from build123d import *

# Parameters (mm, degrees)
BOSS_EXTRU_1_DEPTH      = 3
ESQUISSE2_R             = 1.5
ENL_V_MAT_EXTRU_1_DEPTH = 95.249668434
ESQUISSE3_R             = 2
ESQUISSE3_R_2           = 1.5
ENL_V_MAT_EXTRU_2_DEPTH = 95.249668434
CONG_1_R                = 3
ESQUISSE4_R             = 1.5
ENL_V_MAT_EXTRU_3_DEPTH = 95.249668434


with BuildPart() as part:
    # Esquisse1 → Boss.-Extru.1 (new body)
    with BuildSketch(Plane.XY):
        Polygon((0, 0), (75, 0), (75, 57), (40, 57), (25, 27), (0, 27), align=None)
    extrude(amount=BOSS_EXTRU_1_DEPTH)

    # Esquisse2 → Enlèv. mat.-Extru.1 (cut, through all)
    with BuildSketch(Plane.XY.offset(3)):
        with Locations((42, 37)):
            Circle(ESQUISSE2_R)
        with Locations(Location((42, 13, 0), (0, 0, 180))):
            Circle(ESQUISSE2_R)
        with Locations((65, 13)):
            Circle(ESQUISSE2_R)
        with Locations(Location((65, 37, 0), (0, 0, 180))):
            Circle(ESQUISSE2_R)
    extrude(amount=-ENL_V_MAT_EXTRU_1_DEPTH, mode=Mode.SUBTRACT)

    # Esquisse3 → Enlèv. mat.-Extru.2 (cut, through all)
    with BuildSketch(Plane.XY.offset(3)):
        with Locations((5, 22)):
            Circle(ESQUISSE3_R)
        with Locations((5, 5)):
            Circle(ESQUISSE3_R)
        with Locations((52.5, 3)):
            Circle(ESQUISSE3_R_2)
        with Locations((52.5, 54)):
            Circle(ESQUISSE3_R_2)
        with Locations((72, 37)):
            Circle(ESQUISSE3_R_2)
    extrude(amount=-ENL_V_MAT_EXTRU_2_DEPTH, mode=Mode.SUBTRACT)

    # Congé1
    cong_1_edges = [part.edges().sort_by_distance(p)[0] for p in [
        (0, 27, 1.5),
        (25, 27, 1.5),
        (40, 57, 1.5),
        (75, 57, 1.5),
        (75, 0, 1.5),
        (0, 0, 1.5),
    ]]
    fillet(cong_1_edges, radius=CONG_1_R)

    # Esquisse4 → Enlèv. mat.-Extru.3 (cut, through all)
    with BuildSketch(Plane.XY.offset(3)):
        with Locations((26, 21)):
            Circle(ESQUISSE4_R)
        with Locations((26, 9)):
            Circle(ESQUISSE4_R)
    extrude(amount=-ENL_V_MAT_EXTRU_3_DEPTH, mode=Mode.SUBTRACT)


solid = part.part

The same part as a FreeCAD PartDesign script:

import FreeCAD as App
import Part
import Sketcher

V = App.Vector
Q = App.Units.Quantity


def edges_at(feature, points):
    """Names of the edges that pass closest to the given points."""
    edges = feature.Shape.Edges
    near = lambda p: min(range(len(edges)), key=lambda i: edges[i].distToShape(Part.Vertex(*p))[0])
    return sorted({f"Edge{near(p) + 1}" for p in points})

doc = App.newDocument("Part")
body = doc.addObject("PartDesign::Body", "Body")

# Sketch on XY plane
sketch1 = body.newObject("Sketcher::SketchObject", "Sketch")
sketch1.AttachmentSupport = (doc.getObject("XY_Plane"), [""])
sketch1.MapMode = "FlatFace"
sketch1.addGeometry([
    Part.LineSegment(V(0, 0, 0), V(75, 0, 0)),  # 0
    Part.LineSegment(V(75, 0, 0), V(75, 57, 0)),  # 1
    Part.LineSegment(V(75, 57, 0), V(40, 57, 0)),  # 2
    Part.LineSegment(V(40, 57, 0), V(25, 27, 0)),  # 3
    Part.LineSegment(V(25, 27, 0), V(0, 27, 0)),  # 4
    Part.LineSegment(V(0, 27, 0), V(0, 0, 0)),  # 5
], False)
sketch1.addConstraint([
    Sketcher.Constraint("Coincident", 0, 2, 1, 1),
    Sketcher.Constraint("Coincident", 1, 2, 2, 1),
    Sketcher.Constraint("Coincident", 2, 2, 3, 1),
    Sketcher.Constraint("Coincident", 3, 2, 4, 1),
    Sketcher.Constraint("Coincident", 4, 2, 5, 1),
    Sketcher.Constraint("Coincident", 5, 2, 0, 1),
    Sketcher.Constraint("Horizontal", 0),
    Sketcher.Constraint("Vertical", 1),
    Sketcher.Constraint("Horizontal", 2),
    Sketcher.Constraint("Horizontal", 4),
    Sketcher.Constraint("Vertical", 5),
    Sketcher.Constraint("Coincident", 5, 2, -1, 1),
    Sketcher.Constraint("DistanceX", 0, 1, 0, 2, Q("75 mm")),
    Sketcher.Constraint("DistanceX", 2, 2, 2, 1, Q("35 mm")),
    Sketcher.Constraint("DistanceX", 4, 2, 4, 1, Q("25 mm")),
    Sketcher.Constraint("DistanceY", 1, 1, 1, 2, Q("57 mm")),
    Sketcher.Constraint("DistanceY", 5, 2, 5, 1, Q("27 mm")),
])
pad1 = body.newObject("PartDesign::Pad", "Pad")
pad1.Profile = sketch1
pad1.Length = 3

# Sketch on XY plane
sketch2 = body.newObject("Sketcher::SketchObject", "Sketch001")
sketch2.AttachmentSupport = (doc.getObject("XY_Plane"), [""])
sketch2.MapMode = "FlatFace"
sketch2.AttachmentOffset = App.Placement(V(0, 0, 3), App.Rotation())
sketch2.addGeometry([
    Part.Circle(V(42, 37, 0), V(0, 0, 1), 1.5),
    Part.Circle(V(42, 13, 0), V(0, 0, 1), 1.5),
    Part.Circle(V(65, 13, 0), V(0, 0, 1), 1.5),
    Part.Circle(V(65, 37, 0), V(0, 0, 1), 1.5),
], False)
sketch2.addConstraint([
    Sketcher.Constraint("Equal", 0, 1),
    Sketcher.Constraint("Equal", 1, 2),
    Sketcher.Constraint("Equal", 2, 3),
    Sketcher.Constraint("Horizontal", 1, 3, 2, 3),
    Sketcher.Constraint("Horizontal", 0, 3, 3, 3),
    Sketcher.Constraint("Vertical", 0, 3, 1, 3),
    Sketcher.Constraint("Vertical", 2, 3, 3, 3),
    Sketcher.Constraint("Diameter", 0, Q("3 mm")),
    Sketcher.Constraint("DistanceX", -1, 1, 0, 3, Q("42 mm")),
    Sketcher.Constraint("DistanceY", -1, 1, 0, 3, Q("37 mm")),
    Sketcher.Constraint("DistanceY", -1, 1, 1, 3, Q("13 mm")),
    Sketcher.Constraint("DistanceX", -1, 1, 2, 3, Q("65 mm")),
])
pocket1 = body.newObject("PartDesign::Pocket", "Pocket")
pocket1.Profile = sketch2
pocket1.Type = "ThroughAll"

# Sketch on XY plane
sketch3 = body.newObject("Sketcher::SketchObject", "Sketch002")
sketch3.AttachmentSupport = (doc.getObject("XY_Plane"), [""])
sketch3.MapMode = "FlatFace"
sketch3.AttachmentOffset = App.Placement(V(0, 0, 3), App.Rotation())
sketch3.addGeometry([
    Part.Circle(V(5, 22, 0), V(0, 0, 1), 2),  # 0
    Part.Circle(V(5, 5, 0), V(0, 0, 1), 2),  # 1
    Part.Circle(V(52.5, 3, 0), V(0, 0, 1), 1.5),  # 2
    Part.Circle(V(52.5, 54, 0), V(0, 0, 1), 1.5),  # 3
    Part.Circle(V(72, 37, 0), V(0, 0, 1), 1.5),  # 4
], False)
sketch3.addConstraint([
    Sketcher.Constraint("Equal", 0, 1),
    Sketcher.Constraint("Equal", 2, 3),
    Sketcher.Constraint("Equal", 3, 4),
    Sketcher.Constraint("Vertical", 0, 3, 1, 3),
    Sketcher.Constraint("Vertical", 2, 3, 3, 3),
    Sketcher.Constraint("Diameter", 0, Q("4 mm")),
    Sketcher.Constraint("Diameter", 2, Q("3 mm")),
    Sketcher.Constraint("DistanceX", -1, 1, 0, 3, Q("5 mm")),
    Sketcher.Constraint("DistanceY", -1, 1, 0, 3, Q("22 mm")),
    Sketcher.Constraint("DistanceY", -1, 1, 1, 3, Q("5 mm")),
    Sketcher.Constraint("DistanceY", -1, 1, 2, 3, Q("3 mm")),
    Sketcher.Constraint("DistanceY", -1, 1, 3, 3, Q("54 mm")),
    Sketcher.Constraint("DistanceX", -1, 1, 4, 3, Q("72 mm")),
    Sketcher.Constraint("DistanceY", -1, 1, 4, 3, Q("37 mm")),
    Sketcher.Constraint("DistanceX", -1, 1, 2, 3, Q("52.5 mm")),
])
pocket2 = body.newObject("PartDesign::Pocket", "Pocket001")
pocket2.Profile = sketch3
pocket2.Type = "ThroughAll"
doc.recompute()

fillet = body.newObject("PartDesign::Fillet", "Fillet")
fillet.Base = (pocket2, edges_at(pocket2, [
    (0, 27, 1.5),
    (25, 27, 1.5),
    (40, 57, 1.5),
    (75, 57, 1.5),
    (75, 0, 1.5),
    (0, 0, 1.5),
]))
fillet.Radius = 3

# Sketch on XY plane
sketch4 = body.newObject("Sketcher::SketchObject", "Sketch003")
sketch4.AttachmentSupport = (doc.getObject("XY_Plane"), [""])
sketch4.MapMode = "FlatFace"
sketch4.AttachmentOffset = App.Placement(V(0, 0, 3), App.Rotation())
sketch4.addGeometry([
    Part.Circle(V(26, 21, 0), V(0, 0, 1), 1.5),
    Part.Circle(V(26, 9, 0), V(0, 0, 1), 1.5),
], False)
sketch4.addConstraint([
    Sketcher.Constraint("Equal", 0, 1),
    Sketcher.Constraint("Vertical", 0, 3, 1, 3),
    Sketcher.Constraint("Diameter", 0, Q("3 mm")),
    Sketcher.Constraint("DistanceX", -1, 1, 0, 3, Q("26 mm")),
    Sketcher.Constraint("DistanceY", -1, 1, 0, 3, Q("21 mm")),
    Sketcher.Constraint("DistanceY", -1, 1, 1, 3, Q("9 mm")),
])
pocket3 = body.newObject("PartDesign::Pocket", "Pocket002")
pocket3.Profile = sketch4
pocket3.Type = "ThroughAll"

doc.recompute()
